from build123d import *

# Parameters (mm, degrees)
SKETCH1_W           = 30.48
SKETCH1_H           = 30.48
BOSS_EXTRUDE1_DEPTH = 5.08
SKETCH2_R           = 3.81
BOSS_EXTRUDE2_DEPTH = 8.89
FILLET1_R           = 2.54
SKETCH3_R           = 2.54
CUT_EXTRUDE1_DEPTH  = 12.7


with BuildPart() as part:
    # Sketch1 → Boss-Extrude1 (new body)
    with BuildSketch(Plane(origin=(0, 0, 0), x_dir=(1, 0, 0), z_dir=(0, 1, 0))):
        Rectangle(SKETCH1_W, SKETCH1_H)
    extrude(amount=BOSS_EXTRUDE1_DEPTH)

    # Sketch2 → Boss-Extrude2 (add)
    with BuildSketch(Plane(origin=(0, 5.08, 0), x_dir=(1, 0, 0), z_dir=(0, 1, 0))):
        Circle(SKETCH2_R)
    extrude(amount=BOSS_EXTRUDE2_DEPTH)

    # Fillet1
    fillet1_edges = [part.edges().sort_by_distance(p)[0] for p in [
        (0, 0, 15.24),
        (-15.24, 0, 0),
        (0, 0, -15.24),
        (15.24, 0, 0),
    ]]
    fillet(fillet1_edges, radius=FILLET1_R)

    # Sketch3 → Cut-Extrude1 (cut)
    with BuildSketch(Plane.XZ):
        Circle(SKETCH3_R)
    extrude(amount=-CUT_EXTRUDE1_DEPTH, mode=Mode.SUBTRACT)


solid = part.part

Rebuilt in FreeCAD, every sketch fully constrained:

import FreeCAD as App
import Part
import Sketcher

V = App.Vector
Q = App.Units.Quantity


def edges_at(feature, points):
    """Names of the edges that pass closest to the given points."""
    edges = feature.Shape.Edges
    near = lambda p: min(range(len(edges)), key=lambda i: edges[i].distToShape(Part.Vertex(*p))[0])
    return sorted({f"Edge{near(p) + 1}" for p in points})


def add_polygon(sketch, points):
    """Adds a closed chain of lines whose ends are joined by coincident constraints."""
    first, n = sketch.GeometryCount, len(points)
    for a, b in zip(points, points[1:] + points[:1]):
        sketch.addGeometry(Part.LineSegment(App.Vector(*a, 0), App.Vector(*b, 0)), False)
    for i in range(n):
        sketch.addConstraint(Sketcher.Constraint("Coincident", first + i, 2, first + (i + 1) % n, 1))

doc = App.newDocument("Part")
body = doc.addObject("PartDesign::Body", "Body")

sketch1 = body.newObject("Sketcher::SketchObject", "Sketch")
sketch1.AttachmentSupport = (doc.getObject("XZ_Plane"), [""])
sketch1.MapMode = "FlatFace"
add_polygon(sketch1, [(-15.24, -15.24), (-15.24, 15.24), (15.24, 15.24), (15.24, -15.24)])
sketch1.addConstraint(Sketcher.Constraint("Vertical", 0))
sketch1.addConstraint(Sketcher.Constraint("Horizontal", 1))
sketch1.addConstraint(Sketcher.Constraint("Vertical", 2))
sketch1.addConstraint(Sketcher.Constraint("Horizontal", 3))
sketch1.addConstraint(Sketcher.Constraint("Symmetric", 0, 2, 2, 2, -1, 1))
sketch1.addConstraint(Sketcher.Constraint("Equal", 3, 0))
sketch1.addConstraint(Sketcher.Constraint("DistanceX", 1, 1, 1, 2, Q("1.2 in")))
pad1 = body.newObject("PartDesign::Pad", "Pad")
pad1.Profile = sketch1
pad1.Length = Q("0.2 in")
pad1.Reversed = True

sketch2 = body.newObject("Sketcher::SketchObject", "Sketch001")
sketch2.AttachmentSupport = (doc.getObject("XZ_Plane"), [""])
sketch2.MapMode = "FlatFace"
sketch2.AttachmentOffset = App.Placement(V(0, 0, -0.2 * 25.4), App.Rotation())
sketch2.addGeometry(Part.Circle(V(0, 0, 0), V(0, 0, 1), 3.81), False)
sketch2.addConstraint(Sketcher.Constraint("Coincident", 0, 3, -1, 1))
sketch2.addConstraint(Sketcher.Constraint("Diameter", 0, Q("0.3 in")))
pad2 = body.newObject("PartDesign::Pad", "Pad001")
pad2.Profile = sketch2
pad2.Length = Q("0.35 in")
pad2.Reversed = True
doc.recompute()

fillet = body.newObject("PartDesign::Fillet", "Fillet")
fillet.Base = (pad2, edges_at(pad2, [
    (0, 0, 15.24),
    (-15.24, 0, 0),
    (0, 0, -15.24),
    (15.24, 0, 0),
]))
fillet.Radius = Q("0.1 in")

sketch3 = body.newObject("Sketcher::SketchObject", "Sketch002")
sketch3.AttachmentSupport = (doc.getObject("XZ_Plane"), [""])
sketch3.MapMode = "FlatFace"
sketch3.addGeometry(Part.Circle(V(0, 0, 0), V(0, 0, 1), 2.54), False)
sketch3.addConstraint(Sketcher.Constraint("Coincident", 0, 3, -1, 1))
sketch3.addConstraint(Sketcher.Constraint("Diameter", 0, Q("0.2 in")))
pocket1 = body.newObject("PartDesign::Pocket", "Pocket")
pocket1.Profile = sketch3
pocket1.Length = Q("0.5 in")

doc.recompute()
